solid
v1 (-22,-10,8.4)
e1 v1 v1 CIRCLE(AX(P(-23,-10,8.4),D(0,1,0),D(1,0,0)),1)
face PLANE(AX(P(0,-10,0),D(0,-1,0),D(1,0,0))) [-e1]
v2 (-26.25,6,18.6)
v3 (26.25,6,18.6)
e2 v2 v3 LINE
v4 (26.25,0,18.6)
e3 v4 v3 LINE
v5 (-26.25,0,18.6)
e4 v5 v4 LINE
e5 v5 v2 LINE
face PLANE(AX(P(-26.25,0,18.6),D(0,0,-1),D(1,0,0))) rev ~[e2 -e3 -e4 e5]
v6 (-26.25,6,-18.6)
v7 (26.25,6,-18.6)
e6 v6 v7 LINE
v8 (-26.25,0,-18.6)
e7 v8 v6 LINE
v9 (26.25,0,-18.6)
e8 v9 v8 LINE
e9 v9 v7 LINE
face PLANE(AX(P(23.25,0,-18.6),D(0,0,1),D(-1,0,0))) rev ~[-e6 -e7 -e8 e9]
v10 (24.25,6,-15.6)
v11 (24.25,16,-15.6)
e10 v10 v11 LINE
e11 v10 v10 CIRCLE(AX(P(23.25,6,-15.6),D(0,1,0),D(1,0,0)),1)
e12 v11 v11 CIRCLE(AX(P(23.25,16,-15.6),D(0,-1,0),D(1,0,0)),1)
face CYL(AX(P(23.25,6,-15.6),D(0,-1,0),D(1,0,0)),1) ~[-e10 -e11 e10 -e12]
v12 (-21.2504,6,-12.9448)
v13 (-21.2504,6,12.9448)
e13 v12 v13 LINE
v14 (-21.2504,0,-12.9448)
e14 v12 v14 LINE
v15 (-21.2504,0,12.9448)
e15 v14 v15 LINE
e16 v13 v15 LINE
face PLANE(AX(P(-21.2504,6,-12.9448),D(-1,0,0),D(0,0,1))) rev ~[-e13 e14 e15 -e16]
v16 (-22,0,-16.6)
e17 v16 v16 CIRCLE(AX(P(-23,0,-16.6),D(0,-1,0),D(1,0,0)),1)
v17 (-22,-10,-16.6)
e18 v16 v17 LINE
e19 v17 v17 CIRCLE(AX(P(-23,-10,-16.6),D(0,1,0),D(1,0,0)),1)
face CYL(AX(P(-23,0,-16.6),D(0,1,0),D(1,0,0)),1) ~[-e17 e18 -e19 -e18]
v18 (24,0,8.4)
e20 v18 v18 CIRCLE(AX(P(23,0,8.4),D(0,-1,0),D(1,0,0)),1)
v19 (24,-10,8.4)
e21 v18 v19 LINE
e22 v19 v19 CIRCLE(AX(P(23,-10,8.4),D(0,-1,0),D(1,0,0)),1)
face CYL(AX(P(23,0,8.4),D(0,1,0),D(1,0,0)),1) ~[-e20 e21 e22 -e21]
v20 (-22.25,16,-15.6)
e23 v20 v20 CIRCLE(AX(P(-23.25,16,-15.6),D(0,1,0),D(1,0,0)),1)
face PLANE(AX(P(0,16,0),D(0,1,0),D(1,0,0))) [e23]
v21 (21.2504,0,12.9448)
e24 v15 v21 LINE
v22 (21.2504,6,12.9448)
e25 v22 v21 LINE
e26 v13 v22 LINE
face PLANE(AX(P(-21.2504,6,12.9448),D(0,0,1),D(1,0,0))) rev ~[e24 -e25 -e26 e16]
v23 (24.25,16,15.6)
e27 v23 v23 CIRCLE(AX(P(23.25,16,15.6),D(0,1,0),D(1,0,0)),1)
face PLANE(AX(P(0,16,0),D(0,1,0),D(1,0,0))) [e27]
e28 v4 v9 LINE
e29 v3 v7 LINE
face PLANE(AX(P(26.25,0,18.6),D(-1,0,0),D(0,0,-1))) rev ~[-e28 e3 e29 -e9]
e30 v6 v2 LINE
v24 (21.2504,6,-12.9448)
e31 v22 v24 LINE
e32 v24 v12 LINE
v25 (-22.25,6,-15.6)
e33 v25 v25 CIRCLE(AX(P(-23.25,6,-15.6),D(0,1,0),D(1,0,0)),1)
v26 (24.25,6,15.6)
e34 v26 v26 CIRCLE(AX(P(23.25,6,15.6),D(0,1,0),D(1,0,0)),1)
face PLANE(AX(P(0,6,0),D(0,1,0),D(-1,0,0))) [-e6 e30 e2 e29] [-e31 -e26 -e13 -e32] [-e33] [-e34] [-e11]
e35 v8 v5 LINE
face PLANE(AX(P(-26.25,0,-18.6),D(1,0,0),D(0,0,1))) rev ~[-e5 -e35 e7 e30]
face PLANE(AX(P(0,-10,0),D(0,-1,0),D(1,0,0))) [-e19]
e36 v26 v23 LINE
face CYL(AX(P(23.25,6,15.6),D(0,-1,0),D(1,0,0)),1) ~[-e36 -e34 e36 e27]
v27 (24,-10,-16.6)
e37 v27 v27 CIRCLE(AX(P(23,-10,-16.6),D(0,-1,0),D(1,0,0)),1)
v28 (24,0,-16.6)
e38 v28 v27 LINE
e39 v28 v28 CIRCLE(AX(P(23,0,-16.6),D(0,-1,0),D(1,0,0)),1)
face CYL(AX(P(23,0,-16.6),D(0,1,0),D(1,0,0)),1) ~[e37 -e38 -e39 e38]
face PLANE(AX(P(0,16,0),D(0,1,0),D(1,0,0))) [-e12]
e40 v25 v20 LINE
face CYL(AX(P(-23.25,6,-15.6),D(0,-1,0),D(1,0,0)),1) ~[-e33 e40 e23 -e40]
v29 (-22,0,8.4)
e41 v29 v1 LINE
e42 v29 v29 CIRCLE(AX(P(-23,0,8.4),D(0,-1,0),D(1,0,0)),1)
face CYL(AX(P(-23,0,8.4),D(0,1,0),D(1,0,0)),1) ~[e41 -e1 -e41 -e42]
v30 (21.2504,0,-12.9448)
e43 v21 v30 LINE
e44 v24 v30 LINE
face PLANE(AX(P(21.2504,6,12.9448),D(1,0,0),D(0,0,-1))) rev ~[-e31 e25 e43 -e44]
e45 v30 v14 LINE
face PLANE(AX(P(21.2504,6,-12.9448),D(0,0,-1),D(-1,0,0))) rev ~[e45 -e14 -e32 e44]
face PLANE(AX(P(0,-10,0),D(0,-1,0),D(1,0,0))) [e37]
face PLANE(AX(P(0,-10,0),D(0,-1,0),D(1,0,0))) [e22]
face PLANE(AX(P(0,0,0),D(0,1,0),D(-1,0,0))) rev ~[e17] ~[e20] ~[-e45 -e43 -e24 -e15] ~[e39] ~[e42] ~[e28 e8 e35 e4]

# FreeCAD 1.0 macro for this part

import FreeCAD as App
import Part
import Sketcher

V = App.Vector
Q = App.Units.Quantity


def add_polygon(sketch, points):
    """Adds a closed chain of lines whose ends are joined by coincident constraints."""
    first, n = sketch.GeometryCount, len(points)
    for a, b in zip(points, points[1:] + points[:1]):
        sketch.addGeometry(Part.LineSegment(App.Vector(*a, 0), App.Vector(*b, 0)), False)
    for i in range(n):
        sketch.addConstraint(Sketcher.Constraint("Coincident", first + i, 2, first + (i + 1) % n, 1))

doc = App.newDocument("Part")
body = doc.addObject("PartDesign::Body", "Body")

# Sketch on XZ plane
sketch1 = body.newObject("Sketcher::SketchObject", "Sketch")
sketch1.AttachmentSupport = (doc.getObject("XZ_Plane"), [""])
sketch1.MapMode = "FlatFace"
add_polygon(sketch1, [(-26, -19), (-26, 19), (26, 19), (26, -19)])  # lines 0-3
sketch1.addConstraint([
    Sketcher.Constraint("Vertical", 0),
    Sketcher.Constraint("Horizontal", 1),
    Sketcher.Constraint("Vertical", 2),
    Sketcher.Constraint("Horizontal", 3),
    Sketcher.Constraint("Symmetric", 0, 2, 2, 2, -1, 1),
    Sketcher.Constraint("DistanceX", 1, 1, 1, 2, Q("52.5 mm")),
    Sketcher.Constraint("DistanceY", 0, 1, 0, 2, Q("37.2 mm")),
])
pad1 = body.newObject("PartDesign::Pad", "Pad")
pad1.Profile = sketch1
pad1.Length = 6
pad1.Reversed = True

# Sketch on XZ plane
sketch2 = body.newObject("Sketcher::SketchObject", "Sketch001")
sketch2.AttachmentSupport = (doc.getObject("XZ_Plane"), [""])
sketch2.MapMode = "FlatFace"
sketch2.AttachmentOffset = App.Placement(V(0, 0, -6), App.Rotation())
sketch2.addGeometry([
    Part.Circle(V(23.2, -15.6, 0), V(0, 0, 1), 1),
    Part.Circle(V(23.2, 15.6, 0), V(0, 0, 1), 1),
    Part.Circle(V(-23.2, -15.6, 0), V(0, 0, 1), 1),
], False)
sketch2.addConstraint([
    Sketcher.Constraint("Equal", 0, 1),
    Sketcher.Constraint("Equal", 1, 2),
    Sketcher.Constraint("Symmetric", 1, 3, 2, 3, -1, 1),
    Sketcher.Constraint("Symmetric", 0, 3, 2, 3, -2),
    Sketcher.Constraint("Diameter", 0, Q("2 mm")),
    Sketcher.Constraint("DistanceY", 0, 3, -1, 1, Q("15.6 mm")),
    Sketcher.Constraint("DistanceX", 2, 3, 0, 3, Q("46.5 mm")),
])
pad2 = body.newObject("PartDesign::Pad", "Pad001")
pad2.Profile = sketch2
pad2.Length = 10
pad2.Reversed = True

# Sketch on XZ plane
sketch3 = body.newObject("Sketcher::SketchObject", "Sketch002")
sketch3.AttachmentSupport = (doc.getObject("XZ_Plane"), [""])
sketch3.MapMode = "FlatFace"
sketch3.addGeometry([
    Part.Circle(V(-23, -16.6, 0), V(0, 0, 1), 1),
    Part.Circle(V(-23, 8.4, 0), V(0, 0, 1), 1),
    Part.Circle(V(23, -16.6, 0), V(0, 0, 1), 1),
    Part.Circle(V(23, 8.4, 0), V(0, 0, 1), 1),
], False)
sketch3.addConstraint([
    Sketcher.Constraint("Equal", 0, 1),
    Sketcher.Constraint("Equal", 1, 2),
    Sketcher.Constraint("Equal", 2, 3),
    Sketcher.Constraint("Symmetric", 0, 3, 2, 3, -2),
    Sketcher.Constraint("Symmetric", 1, 3, 3, 3, -2),
    Sketcher.Constraint("Vertical", 0, 3, 1, 3),
    Sketcher.Constraint("Diameter", 0, Q("2 mm")),
    Sketcher.Constraint("DistanceY", 0, 3, 1, 3, Q("25 mm")),
    Sketcher.Constraint("DistanceX", 0, 3, -1, 1, Q("23 mm")),
    Sketcher.Constraint("DistanceY", 0, 3, -1, 1, Q("16.6 mm")),
])
pad3 = body.newObject("PartDesign::Pad", "Pad002")
pad3.Profile = sketch3
pad3.Length = 10

# Sketch on XZ plane
sketch4 = body.newObject("Sketcher::SketchObject", "Sketch003")
sketch4.AttachmentSupport = (doc.getObject("XZ_Plane"), [""])
sketch4.MapMode = "FlatFace"
sketch4.AttachmentOffset = App.Placement(V(0, 0, -6), App.Rotation())
add_polygon(sketch4, [(-21, -13), (-21, 13), (21, 13), (21, -13)])  # lines 0-3
sketch4.addConstraint([
    Sketcher.Constraint("Vertical", 0),
    Sketcher.Constraint("Horizontal", 1),
    Sketcher.Constraint("Vertical", 2),
    Sketcher.Constraint("Horizontal", 3),
    Sketcher.Constraint("Symmetric", 0, 2, 2, 2, -1, 1),
    Sketcher.Constraint("DistanceX", 1, 1, 1, 2, Q("42.5008 mm")),
    Sketcher.Constraint("DistanceY", 0, 1, 0, 2, Q("25.8896 mm")),
])
pocket1 = body.newObject("PartDesign::Pocket", "Pocket")
pocket1.Profile = sketch4
pocket1.Length = 10.5
pocket1.Reversed = True

doc.recompute()
